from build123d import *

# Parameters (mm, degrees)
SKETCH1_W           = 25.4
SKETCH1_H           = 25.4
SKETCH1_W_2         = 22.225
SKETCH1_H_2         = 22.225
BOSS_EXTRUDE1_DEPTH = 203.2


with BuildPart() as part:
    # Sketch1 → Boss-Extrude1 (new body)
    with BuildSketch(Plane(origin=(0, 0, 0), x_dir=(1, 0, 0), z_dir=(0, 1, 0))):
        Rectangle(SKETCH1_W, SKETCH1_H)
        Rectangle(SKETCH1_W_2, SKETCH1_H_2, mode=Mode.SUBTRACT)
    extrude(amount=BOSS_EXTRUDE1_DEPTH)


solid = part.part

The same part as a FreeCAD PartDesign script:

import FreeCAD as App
import Part
import Sketcher

V = App.Vector
Q = App.Units.Quantity

doc = App.newDocument("Part")
body = doc.addObject("PartDesign::Body", "Body")

sketch1 = doc.addObject("Sketcher::SketchObject", "Sketch")
body.addObject(sketch1)
sketch1.AttachmentSupport = (doc.XZ_Plane, [""])
sketch1.MapMode = "FlatFace"
sketch1.addGeometry([
    Part.LineSegment(V(-13, -13, 0), V(-13, 13, 0)),
    Part.LineSegment(V(-13, 13, 0), V(13, 13, 0)),
    Part.LineSegment(V(13, 13, 0), V(13, -13, 0)),
    Part.LineSegment(V(13, -13, 0), V(-13, -13, 0)),
    Part.LineSegment(V(11, 11, 0), V(-11, 11, 0)),
    Part.LineSegment(V(-11, 11, 0), V(-11, -11, 0)),
    Part.LineSegment(V(-11, -11, 0), V(11, -11, 0)),
    Part.LineSegment(V(11, -11, 0), V(11, 11, 0)),
], False)
sketch1.addConstraint([
    Sketcher.Constraint("Coincident", 0, 2, 1, 1),
    Sketcher.Constraint("Coincident", 1, 2, 2, 1),
    Sketcher.Constraint("Coincident", 2, 2, 3, 1),
    Sketcher.Constraint("Coincident", 3, 2, 0, 1),
    Sketcher.Constraint("Coincident", 4, 2, 5, 1),
    Sketcher.Constraint("Coincident", 5, 2, 6, 1),
    Sketcher.Constraint("Coincident", 6, 2, 7, 1),
    Sketcher.Constraint("Coincident", 7, 2, 4, 1),
    Sketcher.Constraint("Vertical", 0),
    Sketcher.Constraint("Horizontal", 1),
    Sketcher.Constraint("Vertical", 2),
    Sketcher.Constraint("Horizontal", 3),
    Sketcher.Constraint("Horizontal", 4),
    Sketcher.Constraint("Vertical", 5),
    Sketcher.Constraint("Horizontal", 6),
    Sketcher.Constraint("Vertical", 7),
    Sketcher.Constraint("Symmetric", 0, 2, 2, 2, -1, 1),
    Sketcher.Constraint("Symmetric", 4, 2, 6, 2, -1, 1),
    Sketcher.Constraint("Equal", 3, 0),
    Sketcher.Constraint("Equal", 6, 5),
    Sketcher.Constraint("DistanceX", 1, 1, 1, 2, Q("1 in")),
    Sketcher.Constraint("DistanceX", 4, 2, 4, 1, Q("0.875 in")),
])
pad1 = doc.addObject("PartDesign::Pad", "Pad")
body.addObject(pad1)
pad1.Profile = sketch1
pad1.Length = Q("8 in")
pad1.Reversed = True

doc.recompute()
